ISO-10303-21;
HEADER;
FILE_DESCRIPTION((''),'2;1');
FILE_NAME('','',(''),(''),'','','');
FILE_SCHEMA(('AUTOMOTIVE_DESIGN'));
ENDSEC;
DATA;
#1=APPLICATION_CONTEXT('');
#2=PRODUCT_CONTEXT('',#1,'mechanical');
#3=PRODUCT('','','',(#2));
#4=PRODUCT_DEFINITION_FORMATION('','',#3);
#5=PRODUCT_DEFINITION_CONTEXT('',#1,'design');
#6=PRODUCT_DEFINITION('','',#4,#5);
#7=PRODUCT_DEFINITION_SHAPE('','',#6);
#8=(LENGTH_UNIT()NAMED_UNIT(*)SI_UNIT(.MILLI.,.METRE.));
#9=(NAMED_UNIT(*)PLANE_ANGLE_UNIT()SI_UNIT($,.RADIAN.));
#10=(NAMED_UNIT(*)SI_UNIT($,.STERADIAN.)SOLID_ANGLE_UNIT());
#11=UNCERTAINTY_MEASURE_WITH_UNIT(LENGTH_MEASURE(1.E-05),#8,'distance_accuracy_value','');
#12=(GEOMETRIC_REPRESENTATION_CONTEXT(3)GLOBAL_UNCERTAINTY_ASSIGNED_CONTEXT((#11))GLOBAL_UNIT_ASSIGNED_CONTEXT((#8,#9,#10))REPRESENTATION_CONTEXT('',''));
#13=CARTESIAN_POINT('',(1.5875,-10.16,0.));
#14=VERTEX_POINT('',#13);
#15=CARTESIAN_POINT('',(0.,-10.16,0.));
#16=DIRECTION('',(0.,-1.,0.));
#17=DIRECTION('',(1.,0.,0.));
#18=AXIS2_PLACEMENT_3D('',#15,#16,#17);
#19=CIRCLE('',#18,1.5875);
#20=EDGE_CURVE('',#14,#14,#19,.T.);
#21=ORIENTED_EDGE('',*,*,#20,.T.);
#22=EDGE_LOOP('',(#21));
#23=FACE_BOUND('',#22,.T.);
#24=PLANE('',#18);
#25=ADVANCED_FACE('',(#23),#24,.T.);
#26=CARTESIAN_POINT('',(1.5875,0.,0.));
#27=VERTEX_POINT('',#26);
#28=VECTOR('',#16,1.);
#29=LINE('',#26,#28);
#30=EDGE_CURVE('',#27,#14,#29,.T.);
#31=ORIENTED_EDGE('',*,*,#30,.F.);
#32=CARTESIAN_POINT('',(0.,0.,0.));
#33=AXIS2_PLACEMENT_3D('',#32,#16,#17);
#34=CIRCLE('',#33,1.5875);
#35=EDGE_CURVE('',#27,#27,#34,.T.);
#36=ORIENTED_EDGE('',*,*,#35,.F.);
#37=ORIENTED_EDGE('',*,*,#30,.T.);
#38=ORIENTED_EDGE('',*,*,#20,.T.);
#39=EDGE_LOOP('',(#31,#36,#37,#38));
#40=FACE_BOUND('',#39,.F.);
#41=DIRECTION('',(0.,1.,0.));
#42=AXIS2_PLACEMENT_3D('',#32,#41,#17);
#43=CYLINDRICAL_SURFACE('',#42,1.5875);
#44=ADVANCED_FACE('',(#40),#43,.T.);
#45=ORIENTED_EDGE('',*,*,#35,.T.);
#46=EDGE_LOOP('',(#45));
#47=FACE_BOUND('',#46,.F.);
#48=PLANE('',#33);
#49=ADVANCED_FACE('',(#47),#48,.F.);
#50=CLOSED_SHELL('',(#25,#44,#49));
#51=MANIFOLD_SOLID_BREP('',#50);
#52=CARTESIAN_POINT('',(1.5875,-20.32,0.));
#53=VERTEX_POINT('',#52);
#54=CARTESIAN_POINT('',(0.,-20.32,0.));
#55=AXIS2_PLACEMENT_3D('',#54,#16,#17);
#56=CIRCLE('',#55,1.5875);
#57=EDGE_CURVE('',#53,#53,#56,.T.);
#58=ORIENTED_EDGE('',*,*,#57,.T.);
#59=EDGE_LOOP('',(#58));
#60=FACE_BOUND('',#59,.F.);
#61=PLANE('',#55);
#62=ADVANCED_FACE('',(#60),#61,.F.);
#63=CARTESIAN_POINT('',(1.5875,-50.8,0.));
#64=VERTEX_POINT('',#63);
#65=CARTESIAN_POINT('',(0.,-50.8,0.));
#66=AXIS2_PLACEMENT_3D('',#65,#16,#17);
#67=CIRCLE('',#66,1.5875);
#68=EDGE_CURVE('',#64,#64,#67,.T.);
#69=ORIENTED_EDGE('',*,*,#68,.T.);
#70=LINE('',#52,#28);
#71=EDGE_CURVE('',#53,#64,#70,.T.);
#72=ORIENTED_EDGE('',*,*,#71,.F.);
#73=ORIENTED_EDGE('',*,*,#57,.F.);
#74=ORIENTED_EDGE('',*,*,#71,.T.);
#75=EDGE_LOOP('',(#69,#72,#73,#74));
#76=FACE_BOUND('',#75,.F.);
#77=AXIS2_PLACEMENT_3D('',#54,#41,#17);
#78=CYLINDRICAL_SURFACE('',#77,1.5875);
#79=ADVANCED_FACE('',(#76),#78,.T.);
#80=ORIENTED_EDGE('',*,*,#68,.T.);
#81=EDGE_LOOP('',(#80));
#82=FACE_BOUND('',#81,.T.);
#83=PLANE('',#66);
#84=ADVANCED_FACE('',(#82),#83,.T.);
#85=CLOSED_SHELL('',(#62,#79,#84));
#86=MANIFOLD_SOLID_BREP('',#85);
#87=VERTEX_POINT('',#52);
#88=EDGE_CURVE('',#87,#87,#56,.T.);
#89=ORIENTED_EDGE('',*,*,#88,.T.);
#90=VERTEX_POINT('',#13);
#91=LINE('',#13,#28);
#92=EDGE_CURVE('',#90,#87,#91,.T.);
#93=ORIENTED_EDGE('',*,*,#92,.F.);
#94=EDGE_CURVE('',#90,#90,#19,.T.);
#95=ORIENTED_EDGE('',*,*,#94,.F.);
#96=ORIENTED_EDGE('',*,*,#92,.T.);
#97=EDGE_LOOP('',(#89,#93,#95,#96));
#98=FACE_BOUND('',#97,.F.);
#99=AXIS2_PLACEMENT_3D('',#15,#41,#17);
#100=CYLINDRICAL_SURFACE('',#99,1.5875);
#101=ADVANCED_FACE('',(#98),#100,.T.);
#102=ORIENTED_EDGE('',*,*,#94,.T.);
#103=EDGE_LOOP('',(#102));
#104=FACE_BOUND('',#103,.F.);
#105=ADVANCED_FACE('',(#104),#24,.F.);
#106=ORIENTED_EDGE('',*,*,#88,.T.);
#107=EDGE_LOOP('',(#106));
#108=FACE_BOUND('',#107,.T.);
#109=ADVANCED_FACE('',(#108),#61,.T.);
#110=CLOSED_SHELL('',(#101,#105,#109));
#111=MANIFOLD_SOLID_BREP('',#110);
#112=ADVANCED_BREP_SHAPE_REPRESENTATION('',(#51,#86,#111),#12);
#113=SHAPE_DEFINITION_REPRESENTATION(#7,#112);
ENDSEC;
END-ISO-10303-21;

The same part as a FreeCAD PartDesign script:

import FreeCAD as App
import Part
import Sketcher

V = App.Vector
Q = App.Units.Quantity

doc = App.newDocument("Part")
body = doc.addObject("PartDesign::Body", "Body")

# Sketch on XZ plane
sketch1 = doc.addObject("Sketcher::SketchObject", "Sketch")
body.addObject(sketch1)
sketch1.AttachmentSupport = (doc.XZ_Plane, [""])
sketch1.MapMode = "FlatFace"
sketch1.addGeometry(Part.Circle(V(0, 0, 0), V(0, 0, 1), 1.5875), False)
sketch1.addConstraint([
    Sketcher.Constraint("Coincident", 0, 3, -1, 1),
    Sketcher.Constraint("Diameter", 0, Q("0.125 in")),
])
pad1 = doc.addObject("PartDesign::Pad", "Pad")
body.addObject(pad1)
pad1.Profile = sketch1
pad1.Length = Q("0.4 in")
body2 = doc.addObject("PartDesign::Body", "Body001")

# Sketch on XZ plane
sketch2 = doc.addObject("Sketcher::SketchObject", "Sketch001")
body2.addObject(sketch2)
sketch2.AttachmentSupport = (doc.getObject("XZ_Plane001"), [""])
sketch2.MapMode = "FlatFace"
sketch2.AttachmentOffset = App.Placement(V(0, 0, 0.4 * 25.4), App.Rotation())
sketch2.addGeometry(Part.Circle(V(0, 0, 0), V(0, 0, 1), 1.5875), False)
sketch2.addConstraint([
    Sketcher.Constraint("Coincident", 0, 3, -1, 1),
    Sketcher.Constraint("Diameter", 0, Q("0.125 in")),
])
pad2 = doc.addObject("PartDesign::Pad", "Pad001")
body2.addObject(pad2)
pad2.Profile = sketch2
pad2.Length = Q("0.4 in")
body3 = doc.addObject("PartDesign::Body", "Body002")

# Sketch on XZ plane
sketch3 = doc.addObject("Sketcher::SketchObject", "Sketch002")
body3.addObject(sketch3)
sketch3.AttachmentSupport = (doc.getObject("XZ_Plane002"), [""])
sketch3.MapMode = "FlatFace"
sketch3.AttachmentOffset = App.Placement(V(0, 0, 0.8 * 25.4), App.Rotation())
sketch3.addGeometry(Part.Circle(V(0, 0, 0), V(0, 0, 1), 1.5875), False)
sketch3.addConstraint([
    Sketcher.Constraint("Coincident", 0, 3, -1, 1),
    Sketcher.Constraint("Diameter", 0, Q("0.125 in")),
])
pad3 = doc.addObject("PartDesign::Pad", "Pad002")
body3.addObject(pad3)
pad3.Profile = sketch3
pad3.Length = Q("1.2 in")

doc.recompute()
